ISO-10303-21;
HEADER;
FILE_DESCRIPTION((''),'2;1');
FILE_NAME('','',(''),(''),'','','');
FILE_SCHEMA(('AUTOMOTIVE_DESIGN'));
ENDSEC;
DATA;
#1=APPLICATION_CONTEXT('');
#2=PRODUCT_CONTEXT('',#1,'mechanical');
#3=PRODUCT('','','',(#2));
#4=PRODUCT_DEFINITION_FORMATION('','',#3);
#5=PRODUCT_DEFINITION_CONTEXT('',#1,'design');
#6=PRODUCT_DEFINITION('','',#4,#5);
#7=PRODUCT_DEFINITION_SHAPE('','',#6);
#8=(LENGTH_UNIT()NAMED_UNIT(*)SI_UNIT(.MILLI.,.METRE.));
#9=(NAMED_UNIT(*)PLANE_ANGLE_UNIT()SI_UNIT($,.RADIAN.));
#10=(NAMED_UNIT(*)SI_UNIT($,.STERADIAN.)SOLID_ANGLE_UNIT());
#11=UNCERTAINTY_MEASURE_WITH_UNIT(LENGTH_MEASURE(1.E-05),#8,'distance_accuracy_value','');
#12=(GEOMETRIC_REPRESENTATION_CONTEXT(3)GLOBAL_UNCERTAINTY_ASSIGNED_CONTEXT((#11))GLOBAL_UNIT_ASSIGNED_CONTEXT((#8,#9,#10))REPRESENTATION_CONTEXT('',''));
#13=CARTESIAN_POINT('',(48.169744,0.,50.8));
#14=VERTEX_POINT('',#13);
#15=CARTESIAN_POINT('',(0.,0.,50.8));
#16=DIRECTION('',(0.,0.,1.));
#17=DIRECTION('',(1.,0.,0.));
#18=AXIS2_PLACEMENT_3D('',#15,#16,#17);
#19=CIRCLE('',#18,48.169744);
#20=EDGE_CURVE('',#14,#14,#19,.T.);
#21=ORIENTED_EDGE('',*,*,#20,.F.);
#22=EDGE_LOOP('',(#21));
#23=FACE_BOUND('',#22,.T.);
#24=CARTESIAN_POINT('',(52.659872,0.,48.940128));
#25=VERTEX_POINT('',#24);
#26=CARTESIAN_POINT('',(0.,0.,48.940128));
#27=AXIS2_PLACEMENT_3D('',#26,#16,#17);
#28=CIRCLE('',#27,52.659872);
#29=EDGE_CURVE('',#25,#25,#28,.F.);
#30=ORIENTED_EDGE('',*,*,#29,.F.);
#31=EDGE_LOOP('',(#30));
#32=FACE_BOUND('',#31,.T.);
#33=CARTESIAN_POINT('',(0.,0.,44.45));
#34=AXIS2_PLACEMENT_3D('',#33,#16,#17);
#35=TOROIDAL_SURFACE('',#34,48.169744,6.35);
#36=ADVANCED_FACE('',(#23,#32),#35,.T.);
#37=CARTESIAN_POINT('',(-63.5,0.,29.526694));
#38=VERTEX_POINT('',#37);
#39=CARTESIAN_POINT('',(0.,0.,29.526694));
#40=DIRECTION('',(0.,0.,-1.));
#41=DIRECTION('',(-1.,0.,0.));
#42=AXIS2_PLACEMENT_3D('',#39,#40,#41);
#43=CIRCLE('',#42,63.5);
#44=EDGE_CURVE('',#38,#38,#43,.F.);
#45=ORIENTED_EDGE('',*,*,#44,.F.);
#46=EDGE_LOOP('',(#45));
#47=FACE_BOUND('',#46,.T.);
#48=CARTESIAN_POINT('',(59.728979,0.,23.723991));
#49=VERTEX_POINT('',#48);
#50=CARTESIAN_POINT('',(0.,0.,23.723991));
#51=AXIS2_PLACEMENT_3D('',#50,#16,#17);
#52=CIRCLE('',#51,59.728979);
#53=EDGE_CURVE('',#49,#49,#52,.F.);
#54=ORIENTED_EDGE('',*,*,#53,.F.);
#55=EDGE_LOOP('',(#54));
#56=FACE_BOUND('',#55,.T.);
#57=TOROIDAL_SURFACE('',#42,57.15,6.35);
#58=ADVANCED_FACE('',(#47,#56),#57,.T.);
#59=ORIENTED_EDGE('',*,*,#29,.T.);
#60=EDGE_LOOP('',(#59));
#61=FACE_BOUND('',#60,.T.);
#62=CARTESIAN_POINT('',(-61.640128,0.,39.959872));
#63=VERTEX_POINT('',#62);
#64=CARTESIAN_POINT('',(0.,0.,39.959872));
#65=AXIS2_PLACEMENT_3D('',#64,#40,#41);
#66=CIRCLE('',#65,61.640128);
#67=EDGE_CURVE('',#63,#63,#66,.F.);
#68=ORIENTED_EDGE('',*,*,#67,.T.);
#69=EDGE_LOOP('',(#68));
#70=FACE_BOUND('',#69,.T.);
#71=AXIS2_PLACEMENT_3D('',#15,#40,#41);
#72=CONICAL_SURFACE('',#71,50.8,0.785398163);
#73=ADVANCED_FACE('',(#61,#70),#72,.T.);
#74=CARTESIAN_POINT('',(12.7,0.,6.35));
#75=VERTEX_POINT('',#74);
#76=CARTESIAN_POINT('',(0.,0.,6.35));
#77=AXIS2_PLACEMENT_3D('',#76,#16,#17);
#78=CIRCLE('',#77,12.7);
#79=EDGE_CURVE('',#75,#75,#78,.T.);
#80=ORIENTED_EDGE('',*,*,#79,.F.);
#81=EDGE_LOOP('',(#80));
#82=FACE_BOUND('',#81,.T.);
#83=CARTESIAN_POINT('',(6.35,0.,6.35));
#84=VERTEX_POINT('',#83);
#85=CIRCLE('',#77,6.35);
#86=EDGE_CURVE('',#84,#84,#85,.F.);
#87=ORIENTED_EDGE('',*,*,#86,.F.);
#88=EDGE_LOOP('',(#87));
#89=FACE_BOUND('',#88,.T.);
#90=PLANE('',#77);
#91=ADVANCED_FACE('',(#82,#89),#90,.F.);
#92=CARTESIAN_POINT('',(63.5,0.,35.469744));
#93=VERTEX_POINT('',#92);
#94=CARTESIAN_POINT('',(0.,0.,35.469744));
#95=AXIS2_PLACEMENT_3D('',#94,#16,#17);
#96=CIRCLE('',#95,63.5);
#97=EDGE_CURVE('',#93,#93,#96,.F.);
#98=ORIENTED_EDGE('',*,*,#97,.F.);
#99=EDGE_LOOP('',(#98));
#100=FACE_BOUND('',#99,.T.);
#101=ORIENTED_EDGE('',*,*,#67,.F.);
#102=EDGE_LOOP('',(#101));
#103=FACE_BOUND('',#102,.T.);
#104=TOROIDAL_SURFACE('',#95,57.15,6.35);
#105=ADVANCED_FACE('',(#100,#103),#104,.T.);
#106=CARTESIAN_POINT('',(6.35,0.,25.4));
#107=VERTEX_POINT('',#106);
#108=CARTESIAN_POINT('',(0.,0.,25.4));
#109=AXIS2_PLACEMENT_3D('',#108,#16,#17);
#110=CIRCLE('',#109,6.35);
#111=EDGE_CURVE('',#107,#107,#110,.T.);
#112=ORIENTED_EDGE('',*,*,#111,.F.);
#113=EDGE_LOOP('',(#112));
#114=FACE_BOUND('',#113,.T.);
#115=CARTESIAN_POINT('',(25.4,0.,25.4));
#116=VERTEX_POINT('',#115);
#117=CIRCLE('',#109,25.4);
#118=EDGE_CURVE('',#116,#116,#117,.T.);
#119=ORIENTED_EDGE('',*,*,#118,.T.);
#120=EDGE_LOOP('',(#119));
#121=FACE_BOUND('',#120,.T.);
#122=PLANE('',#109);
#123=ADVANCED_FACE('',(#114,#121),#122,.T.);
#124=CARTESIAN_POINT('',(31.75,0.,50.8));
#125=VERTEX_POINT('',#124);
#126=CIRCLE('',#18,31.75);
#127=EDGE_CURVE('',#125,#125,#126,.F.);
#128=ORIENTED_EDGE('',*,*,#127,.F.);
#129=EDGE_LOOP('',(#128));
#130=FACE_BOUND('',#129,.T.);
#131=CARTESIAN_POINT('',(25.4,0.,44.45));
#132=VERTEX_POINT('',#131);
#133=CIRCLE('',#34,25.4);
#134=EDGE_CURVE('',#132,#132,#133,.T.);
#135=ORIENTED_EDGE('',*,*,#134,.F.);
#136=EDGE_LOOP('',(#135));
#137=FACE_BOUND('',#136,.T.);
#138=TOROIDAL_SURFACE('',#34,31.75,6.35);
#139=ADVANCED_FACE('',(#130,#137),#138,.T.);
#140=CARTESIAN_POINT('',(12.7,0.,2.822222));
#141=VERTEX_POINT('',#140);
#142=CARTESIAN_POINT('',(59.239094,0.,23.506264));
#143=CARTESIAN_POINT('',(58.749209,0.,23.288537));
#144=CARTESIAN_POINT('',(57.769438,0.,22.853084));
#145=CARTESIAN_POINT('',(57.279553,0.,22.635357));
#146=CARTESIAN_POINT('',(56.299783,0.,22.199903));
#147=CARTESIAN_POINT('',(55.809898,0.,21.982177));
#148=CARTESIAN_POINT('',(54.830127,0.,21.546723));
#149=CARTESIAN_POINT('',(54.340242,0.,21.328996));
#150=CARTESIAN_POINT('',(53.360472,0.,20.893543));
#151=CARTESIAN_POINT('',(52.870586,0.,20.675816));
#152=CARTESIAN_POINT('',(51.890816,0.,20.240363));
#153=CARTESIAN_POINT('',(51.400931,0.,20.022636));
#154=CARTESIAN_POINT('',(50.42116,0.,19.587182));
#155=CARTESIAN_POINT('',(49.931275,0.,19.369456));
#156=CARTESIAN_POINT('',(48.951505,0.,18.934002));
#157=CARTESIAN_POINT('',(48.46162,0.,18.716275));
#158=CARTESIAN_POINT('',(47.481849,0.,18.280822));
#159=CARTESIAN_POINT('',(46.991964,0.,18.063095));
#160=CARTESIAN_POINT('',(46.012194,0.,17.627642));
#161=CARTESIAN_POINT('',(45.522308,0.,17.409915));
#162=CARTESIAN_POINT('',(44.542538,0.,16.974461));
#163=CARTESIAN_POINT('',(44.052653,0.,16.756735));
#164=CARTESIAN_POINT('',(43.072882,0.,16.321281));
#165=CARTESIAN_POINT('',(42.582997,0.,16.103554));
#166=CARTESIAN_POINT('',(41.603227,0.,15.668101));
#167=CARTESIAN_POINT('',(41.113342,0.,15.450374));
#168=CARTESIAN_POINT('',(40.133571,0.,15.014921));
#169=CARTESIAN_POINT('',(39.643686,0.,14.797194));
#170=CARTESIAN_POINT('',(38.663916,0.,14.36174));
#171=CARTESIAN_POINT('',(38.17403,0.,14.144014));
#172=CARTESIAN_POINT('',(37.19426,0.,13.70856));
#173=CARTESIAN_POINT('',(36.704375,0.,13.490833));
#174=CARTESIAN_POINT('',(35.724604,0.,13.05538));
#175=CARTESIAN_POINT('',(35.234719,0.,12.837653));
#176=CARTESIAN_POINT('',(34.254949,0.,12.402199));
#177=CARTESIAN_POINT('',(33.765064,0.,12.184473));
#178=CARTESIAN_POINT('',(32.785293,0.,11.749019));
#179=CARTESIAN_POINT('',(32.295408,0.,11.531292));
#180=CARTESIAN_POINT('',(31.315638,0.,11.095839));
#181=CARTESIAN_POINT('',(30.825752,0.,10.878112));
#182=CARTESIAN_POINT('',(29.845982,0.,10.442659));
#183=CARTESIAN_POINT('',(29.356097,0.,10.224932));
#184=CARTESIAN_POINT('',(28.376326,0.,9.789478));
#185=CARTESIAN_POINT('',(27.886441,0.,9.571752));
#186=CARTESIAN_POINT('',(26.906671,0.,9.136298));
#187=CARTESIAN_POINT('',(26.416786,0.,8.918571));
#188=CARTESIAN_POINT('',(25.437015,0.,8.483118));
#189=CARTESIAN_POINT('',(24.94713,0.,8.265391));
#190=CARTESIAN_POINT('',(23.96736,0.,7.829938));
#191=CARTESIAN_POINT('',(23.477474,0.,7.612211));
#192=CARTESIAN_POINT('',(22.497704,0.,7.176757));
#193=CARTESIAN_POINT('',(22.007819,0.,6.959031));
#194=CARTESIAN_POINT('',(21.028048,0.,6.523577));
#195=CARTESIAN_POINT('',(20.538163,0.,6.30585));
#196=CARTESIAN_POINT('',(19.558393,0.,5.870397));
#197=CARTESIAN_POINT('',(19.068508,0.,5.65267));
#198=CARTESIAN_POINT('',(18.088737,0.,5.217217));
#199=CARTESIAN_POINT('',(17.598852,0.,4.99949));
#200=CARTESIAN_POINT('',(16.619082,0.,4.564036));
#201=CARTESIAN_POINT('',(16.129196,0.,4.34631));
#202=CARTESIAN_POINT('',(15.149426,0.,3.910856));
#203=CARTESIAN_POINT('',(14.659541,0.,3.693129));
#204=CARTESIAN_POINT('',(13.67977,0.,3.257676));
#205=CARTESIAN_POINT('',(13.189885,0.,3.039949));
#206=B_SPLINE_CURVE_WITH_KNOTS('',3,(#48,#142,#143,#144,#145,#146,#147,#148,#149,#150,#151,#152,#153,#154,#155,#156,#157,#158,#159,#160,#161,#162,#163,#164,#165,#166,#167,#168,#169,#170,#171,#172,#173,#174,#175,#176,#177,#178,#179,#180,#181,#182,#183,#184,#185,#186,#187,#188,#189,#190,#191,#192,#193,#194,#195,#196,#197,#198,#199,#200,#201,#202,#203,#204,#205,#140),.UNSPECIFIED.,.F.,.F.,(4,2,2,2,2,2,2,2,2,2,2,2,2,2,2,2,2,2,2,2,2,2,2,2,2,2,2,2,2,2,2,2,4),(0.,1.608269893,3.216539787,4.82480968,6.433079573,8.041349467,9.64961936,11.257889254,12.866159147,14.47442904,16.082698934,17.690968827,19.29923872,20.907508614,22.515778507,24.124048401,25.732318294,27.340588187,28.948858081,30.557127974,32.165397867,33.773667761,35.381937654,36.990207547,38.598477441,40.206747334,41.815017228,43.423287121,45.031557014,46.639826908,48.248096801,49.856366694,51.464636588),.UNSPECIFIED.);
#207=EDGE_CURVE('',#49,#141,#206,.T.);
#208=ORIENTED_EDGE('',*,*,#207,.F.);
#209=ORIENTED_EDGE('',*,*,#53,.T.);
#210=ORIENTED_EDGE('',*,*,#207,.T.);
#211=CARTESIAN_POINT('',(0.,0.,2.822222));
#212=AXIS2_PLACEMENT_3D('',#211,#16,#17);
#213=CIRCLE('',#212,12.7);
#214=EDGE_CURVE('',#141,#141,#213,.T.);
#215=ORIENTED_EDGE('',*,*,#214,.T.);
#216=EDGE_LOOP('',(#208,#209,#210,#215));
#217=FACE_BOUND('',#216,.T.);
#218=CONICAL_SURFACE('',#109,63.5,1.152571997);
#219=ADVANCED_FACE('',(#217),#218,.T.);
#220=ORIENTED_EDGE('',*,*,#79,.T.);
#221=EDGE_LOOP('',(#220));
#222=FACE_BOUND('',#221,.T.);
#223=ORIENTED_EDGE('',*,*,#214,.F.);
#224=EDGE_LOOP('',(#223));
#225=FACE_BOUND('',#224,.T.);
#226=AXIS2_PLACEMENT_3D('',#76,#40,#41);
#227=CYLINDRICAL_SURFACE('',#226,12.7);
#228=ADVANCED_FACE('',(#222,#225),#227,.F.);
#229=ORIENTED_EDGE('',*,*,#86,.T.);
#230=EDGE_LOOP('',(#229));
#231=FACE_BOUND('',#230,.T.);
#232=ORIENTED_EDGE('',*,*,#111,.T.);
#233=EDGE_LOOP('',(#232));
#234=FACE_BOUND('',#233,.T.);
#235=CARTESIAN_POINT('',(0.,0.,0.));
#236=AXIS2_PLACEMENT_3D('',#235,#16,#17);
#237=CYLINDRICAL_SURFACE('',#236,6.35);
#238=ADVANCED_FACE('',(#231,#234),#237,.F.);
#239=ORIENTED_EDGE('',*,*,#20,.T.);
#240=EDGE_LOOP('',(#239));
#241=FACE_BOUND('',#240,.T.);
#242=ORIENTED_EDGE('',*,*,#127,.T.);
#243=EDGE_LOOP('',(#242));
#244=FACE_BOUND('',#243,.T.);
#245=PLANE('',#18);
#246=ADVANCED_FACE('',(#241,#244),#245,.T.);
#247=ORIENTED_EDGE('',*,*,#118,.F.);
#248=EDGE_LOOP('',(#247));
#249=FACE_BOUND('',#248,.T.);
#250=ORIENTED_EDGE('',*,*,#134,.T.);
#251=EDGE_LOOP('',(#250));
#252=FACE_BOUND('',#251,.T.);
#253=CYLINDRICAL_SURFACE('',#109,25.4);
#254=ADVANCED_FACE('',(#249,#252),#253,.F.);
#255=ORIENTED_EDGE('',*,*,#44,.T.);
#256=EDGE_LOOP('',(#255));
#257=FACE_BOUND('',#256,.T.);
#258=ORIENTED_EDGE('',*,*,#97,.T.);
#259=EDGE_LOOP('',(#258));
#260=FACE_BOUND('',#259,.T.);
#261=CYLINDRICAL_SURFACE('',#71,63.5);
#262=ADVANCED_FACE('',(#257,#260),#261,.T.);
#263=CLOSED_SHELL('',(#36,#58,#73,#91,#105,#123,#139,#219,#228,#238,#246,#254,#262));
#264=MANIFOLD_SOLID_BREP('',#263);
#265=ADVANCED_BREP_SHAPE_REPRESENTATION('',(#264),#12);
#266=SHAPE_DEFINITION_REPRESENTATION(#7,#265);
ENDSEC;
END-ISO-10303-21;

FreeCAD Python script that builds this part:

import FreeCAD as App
import Part
import Sketcher

V = App.Vector
Q = App.Units.Quantity


def edges_at(feature, points):
    """Names of the edges that pass closest to the given points."""
    edges = feature.Shape.Edges
    near = lambda p: min(range(len(edges)), key=lambda i: edges[i].distToShape(Part.Vertex(*p))[0])
    return sorted({f"Edge{near(p) + 1}" for p in points})

doc = App.newDocument("Part")
params = doc.addObject("Spreadsheet::Sheet", "Params")
for row, (alias, value) in enumerate([
    ("sketch1_diameter", "5 in"),
    ("pad1_length", "2 in"),
    ("sketch2_diameter", "2 in"),
    ("pocket1_length", "1 in"),
    ("sketch3_diameter", "0.5 in"),
    ("sketch4_height", "1 in"),
    ("sketch4_width", "2.25 in"),
    ("groove_angle", "360 deg"),
    ("sketch5_diameter", "1 in"),
    ("pocket3_length", "0.25 in"),
    ("chamfer_size", "0.5 in"),
    ("fillet_radius", "0.25 in"),
], start=1):
    params.set(f"A{row}", alias)
    params.set(f"B{row}", "=" + value)
    params.setAlias(f"B{row}", alias)

body = doc.addObject("PartDesign::Body", "Body")

# Sketch on XY plane
sketch1 = doc.addObject("Sketcher::SketchObject", "Sketch")
body.addObject(sketch1)
sketch1.AttachmentSupport = (doc.XY_Plane, [""])
sketch1.MapMode = "FlatFace"
sketch1.addGeometry(Part.Circle(V(0, 0, 0), V(0, 0, 1), 63.5), False)
sketch1.addConstraint([
    Sketcher.Constraint("Coincident", 0, 3, -1, 1),
    Sketcher.Constraint("Diameter", 0, Q("5 in")),
])
sketch1.setExpression("Constraints[1]", "Params.sketch1_diameter")
pad1 = doc.addObject("PartDesign::Pad", "Pad")
body.addObject(pad1)
pad1.Profile = sketch1
pad1.setExpression("Length", "Params.pad1_length")

# Sketch on XY plane
sketch2 = doc.addObject("Sketcher::SketchObject", "Sketch001")
body.addObject(sketch2)
sketch2.AttachmentSupport = (doc.XY_Plane, [""])
sketch2.MapMode = "FlatFace"
sketch2.AttachmentOffset = App.Placement(V(0, 0, 2 * 25.4), App.Rotation())
sketch2.addGeometry(Part.Circle(V(0, 0, 0), V(0, 0, 1), 25.4), False)
sketch2.addConstraint([
    Sketcher.Constraint("Coincident", 0, 3, -1, 1),
    Sketcher.Constraint("Diameter", 0, Q("2 in")),
])
sketch2.setExpression("Constraints[1]", "Params.sketch2_diameter")
pocket1 = doc.addObject("PartDesign::Pocket", "Pocket")
body.addObject(pocket1)
pocket1.Profile = sketch2
pocket1.setExpression("Length", "Params.pocket1_length")

# Sketch on XY plane
sketch3 = doc.addObject("Sketcher::SketchObject", "Sketch002")
body.addObject(sketch3)
sketch3.AttachmentSupport = (doc.XY_Plane, [""])
sketch3.MapMode = "FlatFace"
sketch3.AttachmentOffset = App.Placement(V(0, 0, 1 * 25.4), App.Rotation())
sketch3.addGeometry(Part.Circle(V(0, 0, 0), V(0, 0, 1), 6.35), False)
sketch3.addConstraint([
    Sketcher.Constraint("Coincident", 0, 3, -1, 1),
    Sketcher.Constraint("Diameter", 0, Q("0.5 in")),
])
sketch3.setExpression("Constraints[1]", "Params.sketch3_diameter")
pocket2 = doc.addObject("PartDesign::Pocket", "Pocket001")
body.addObject(pocket2)
pocket2.Profile = sketch3
pocket2.Type = "ThroughAll"

# Sketch on YZ plane
sketch4 = doc.addObject("Sketcher::SketchObject", "Sketch003")
body.addObject(sketch4)
sketch4.AttachmentSupport = (doc.YZ_Plane, [""])
sketch4.MapMode = "FlatFace"
sketch4.addGeometry([
    Part.LineSegment(V(63.5, 0, 0), V(63.5, 25.4, 0)),
    Part.LineSegment(V(63.5, 25.4, 0), V(6.35, 0, 0)),
    Part.LineSegment(V(6.35, 0, 0), V(63.5, 0, 0)),
], False)
sketch4.addConstraint([
    Sketcher.Constraint("Coincident", 0, 2, 1, 1),
    Sketcher.Constraint("Coincident", 1, 2, 2, 1),
    Sketcher.Constraint("Coincident", 2, 2, 0, 1),
    Sketcher.Constraint("Vertical", 0),
    Sketcher.Constraint("Horizontal", 2),
    Sketcher.Constraint("PointOnObject", 1, 2, -1),
    Sketcher.Constraint("DistanceY", 0, 1, 0, 2, Q("1 in")),
    Sketcher.Constraint("DistanceX", 2, 1, 2, 2, Q("2.25 in")),
    Sketcher.Constraint("DistanceX", -1, 1, 0, 2, Q("2.5 in")),
])
sketch4.setExpression("Constraints[6]", "Params.sketch4_height")
sketch4.setExpression("Constraints[7]", "Params.sketch4_width")
groove = doc.addObject("PartDesign::Groove", "Groove")
body.addObject(groove)
groove.Profile = sketch4
groove.ReferenceAxis = (sketch4, ["V_Axis"])
groove.setExpression("Angle", "Params.groove_angle")

# Sketch on XY plane
sketch5 = doc.addObject("Sketcher::SketchObject", "Sketch004")
body.addObject(sketch5)
sketch5.AttachmentSupport = (doc.XY_Plane, [""])
sketch5.MapMode = "FlatFace"
sketch5.addGeometry(Part.Circle(V(0, 0, 0), V(0, 0, 1), 12.7), False)
sketch5.addConstraint([
    Sketcher.Constraint("Coincident", 0, 3, -1, 1),
    Sketcher.Constraint("Diameter", 0, Q("1 in")),
])
sketch5.setExpression("Constraints[1]", "Params.sketch5_diameter")
pocket3 = doc.addObject("PartDesign::Pocket", "Pocket002")
body.addObject(pocket3)
pocket3.Profile = sketch5
pocket3.setExpression("Length", "Params.pocket3_length")
pocket3.Reversed = True
doc.recompute()

chamfer = doc.addObject("PartDesign::Chamfer", "Chamfer")
body.addObject(chamfer)
chamfer.Base = (pocket3, edges_at(pocket3, [(-63.5, 0, 50.8)]))
chamfer.setExpression("Size", "Params.chamfer_size")
doc.recompute()

fillet = doc.addObject("PartDesign::Fillet", "Fillet")
body.addObject(fillet)
fillet.Base = (chamfer, edges_at(chamfer, [
    (-63.5, 0, 25.4),
    (-50.8, 0, 50.8),
    (-63.5, 0, 38.1),
    (-25.4, 0, 50.8),
]))
fillet.setExpression("Radius", "Params.fillet_radius")

doc.recompute()
